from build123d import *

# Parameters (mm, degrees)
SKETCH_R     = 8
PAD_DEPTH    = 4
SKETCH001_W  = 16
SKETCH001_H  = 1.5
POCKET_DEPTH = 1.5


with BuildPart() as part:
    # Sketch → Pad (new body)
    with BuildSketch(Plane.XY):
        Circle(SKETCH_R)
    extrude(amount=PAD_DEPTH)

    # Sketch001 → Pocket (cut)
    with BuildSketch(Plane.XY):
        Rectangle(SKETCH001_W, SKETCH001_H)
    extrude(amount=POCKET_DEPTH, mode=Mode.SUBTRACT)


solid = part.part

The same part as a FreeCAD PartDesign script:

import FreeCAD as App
import Part
import Sketcher
Q = App.Units.Quantity


def add_polygon(sketch, points):
    """Adds a closed chain of lines whose ends are joined by coincident constraints."""
    first, n = sketch.GeometryCount, len(points)
    for a, b in zip(points, points[1:] + points[:1]):
        sketch.addGeometry(Part.LineSegment(App.Vector(*a, 0), App.Vector(*b, 0)), False)
    for i in range(n):
        sketch.addConstraint(Sketcher.Constraint("Coincident", first + i, 2, first + (i + 1) % n, 1))

doc = App.newDocument("Part")
body = doc.addObject("PartDesign::Body", "Body")

# Sketch on XY plane
sketch1 = doc.addObject("Sketcher::SketchObject", "Sketch")
body.addObject(sketch1)
sketch1.AttachmentSupport = (doc.XY_Plane, [""])
sketch1.MapMode = "FlatFace"
sketch1.addGeometry(Part.Circle(App.Vector(0, 0, 0), App.Vector(0, 0, 1), 8), False)
sketch1.addConstraint([
    Sketcher.Constraint("Coincident", 0, 3, -1, 1),
    Sketcher.Constraint("Diameter", 0, Q("16 mm")),
])
pad1 = doc.addObject("PartDesign::Pad", "Pad")
body.addObject(pad1)
pad1.Profile = sketch1
pad1.Length = 4

# Sketch on XY plane
sketch2 = doc.addObject("Sketcher::SketchObject", "Sketch001")
body.addObject(sketch2)
sketch2.AttachmentSupport = (doc.XY_Plane, [""])
sketch2.MapMode = "FlatFace"
add_polygon(sketch2, [(-8, 0.8), (-8, -0.8), (8, -0.8), (8, 0.8)])  # lines 0-3
sketch2.addConstraint([
    Sketcher.Constraint("Vertical", 0),
    Sketcher.Constraint("Horizontal", 1),
    Sketcher.Constraint("Vertical", 2),
    Sketcher.Constraint("Horizontal", 3),
    Sketcher.Constraint("Symmetric", 0, 2, 2, 2, -1, 1),
    Sketcher.Constraint("DistanceX", 1, 1, 1, 2, Q("16 mm")),
    Sketcher.Constraint("DistanceY", 0, 2, 0, 1, Q("1.5 mm")),
])
pocket1 = doc.addObject("PartDesign::Pocket", "Pocket")
body.addObject(pocket1)
pocket1.Profile = sketch2
pocket1.Length = 1.5
pocket1.Reversed = True

doc.recompute()
